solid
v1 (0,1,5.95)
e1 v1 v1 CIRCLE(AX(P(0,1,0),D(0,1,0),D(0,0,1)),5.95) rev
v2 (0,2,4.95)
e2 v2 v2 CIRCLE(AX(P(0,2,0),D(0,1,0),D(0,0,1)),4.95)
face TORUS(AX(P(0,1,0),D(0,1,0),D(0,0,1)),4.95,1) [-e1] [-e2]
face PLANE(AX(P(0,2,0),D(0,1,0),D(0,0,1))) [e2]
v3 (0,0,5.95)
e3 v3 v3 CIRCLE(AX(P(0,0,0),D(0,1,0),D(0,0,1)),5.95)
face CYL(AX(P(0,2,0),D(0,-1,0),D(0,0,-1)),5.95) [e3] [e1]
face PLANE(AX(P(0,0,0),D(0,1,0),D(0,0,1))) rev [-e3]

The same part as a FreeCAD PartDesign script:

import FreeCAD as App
import Part
import Sketcher

V = App.Vector
Q = App.Units.Quantity


def edges_at(feature, points):
    """Names of the edges that pass closest to the given points."""
    edges = feature.Shape.Edges
    near = lambda p: min(range(len(edges)), key=lambda i: edges[i].distToShape(Part.Vertex(*p))[0])
    return sorted({f"Edge{near(p) + 1}" for p in points})

doc = App.newDocument("Part")
params = doc.addObject("Spreadsheet::Sheet", "Params")
for row, (alias, value) in enumerate([
    ("sketch1_diameter", "11.9 mm"),
    ("pad1_length", "2 mm"),
    ("fillet_radius", "1 mm"),
], start=1):
    params.set(f"A{row}", alias)
    params.set(f"B{row}", "=" + value)
    params.setAlias(f"B{row}", alias)

body = doc.addObject("PartDesign::Body", "Body")

sketch1 = body.newObject("Sketcher::SketchObject", "Sketch")
sketch1.AttachmentSupport = (doc.getObject("XZ_Plane"), [""])
sketch1.MapMode = "FlatFace"
sketch1.addGeometry(Part.Circle(V(0, 0, 0), V(0, 0, 1), 5.95), False)
sketch1.addConstraint([
    Sketcher.Constraint("Coincident", 0, 3, -1, 1),
    Sketcher.Constraint("Diameter", 0, Q("11.9 mm")),
])
sketch1.setExpression("Constraints[1]", "Params.sketch1_diameter")
pad1 = body.newObject("PartDesign::Pad", "Pad")
pad1.Profile = sketch1
pad1.setExpression("Length", "Params.pad1_length")
pad1.Reversed = True
doc.recompute()

fillet = body.newObject("PartDesign::Fillet", "Fillet")
fillet.Base = (pad1, edges_at(pad1, [(-5.95, 2, 0)]))
fillet.setExpression("Radius", "Params.fillet_radius")

doc.recompute()
